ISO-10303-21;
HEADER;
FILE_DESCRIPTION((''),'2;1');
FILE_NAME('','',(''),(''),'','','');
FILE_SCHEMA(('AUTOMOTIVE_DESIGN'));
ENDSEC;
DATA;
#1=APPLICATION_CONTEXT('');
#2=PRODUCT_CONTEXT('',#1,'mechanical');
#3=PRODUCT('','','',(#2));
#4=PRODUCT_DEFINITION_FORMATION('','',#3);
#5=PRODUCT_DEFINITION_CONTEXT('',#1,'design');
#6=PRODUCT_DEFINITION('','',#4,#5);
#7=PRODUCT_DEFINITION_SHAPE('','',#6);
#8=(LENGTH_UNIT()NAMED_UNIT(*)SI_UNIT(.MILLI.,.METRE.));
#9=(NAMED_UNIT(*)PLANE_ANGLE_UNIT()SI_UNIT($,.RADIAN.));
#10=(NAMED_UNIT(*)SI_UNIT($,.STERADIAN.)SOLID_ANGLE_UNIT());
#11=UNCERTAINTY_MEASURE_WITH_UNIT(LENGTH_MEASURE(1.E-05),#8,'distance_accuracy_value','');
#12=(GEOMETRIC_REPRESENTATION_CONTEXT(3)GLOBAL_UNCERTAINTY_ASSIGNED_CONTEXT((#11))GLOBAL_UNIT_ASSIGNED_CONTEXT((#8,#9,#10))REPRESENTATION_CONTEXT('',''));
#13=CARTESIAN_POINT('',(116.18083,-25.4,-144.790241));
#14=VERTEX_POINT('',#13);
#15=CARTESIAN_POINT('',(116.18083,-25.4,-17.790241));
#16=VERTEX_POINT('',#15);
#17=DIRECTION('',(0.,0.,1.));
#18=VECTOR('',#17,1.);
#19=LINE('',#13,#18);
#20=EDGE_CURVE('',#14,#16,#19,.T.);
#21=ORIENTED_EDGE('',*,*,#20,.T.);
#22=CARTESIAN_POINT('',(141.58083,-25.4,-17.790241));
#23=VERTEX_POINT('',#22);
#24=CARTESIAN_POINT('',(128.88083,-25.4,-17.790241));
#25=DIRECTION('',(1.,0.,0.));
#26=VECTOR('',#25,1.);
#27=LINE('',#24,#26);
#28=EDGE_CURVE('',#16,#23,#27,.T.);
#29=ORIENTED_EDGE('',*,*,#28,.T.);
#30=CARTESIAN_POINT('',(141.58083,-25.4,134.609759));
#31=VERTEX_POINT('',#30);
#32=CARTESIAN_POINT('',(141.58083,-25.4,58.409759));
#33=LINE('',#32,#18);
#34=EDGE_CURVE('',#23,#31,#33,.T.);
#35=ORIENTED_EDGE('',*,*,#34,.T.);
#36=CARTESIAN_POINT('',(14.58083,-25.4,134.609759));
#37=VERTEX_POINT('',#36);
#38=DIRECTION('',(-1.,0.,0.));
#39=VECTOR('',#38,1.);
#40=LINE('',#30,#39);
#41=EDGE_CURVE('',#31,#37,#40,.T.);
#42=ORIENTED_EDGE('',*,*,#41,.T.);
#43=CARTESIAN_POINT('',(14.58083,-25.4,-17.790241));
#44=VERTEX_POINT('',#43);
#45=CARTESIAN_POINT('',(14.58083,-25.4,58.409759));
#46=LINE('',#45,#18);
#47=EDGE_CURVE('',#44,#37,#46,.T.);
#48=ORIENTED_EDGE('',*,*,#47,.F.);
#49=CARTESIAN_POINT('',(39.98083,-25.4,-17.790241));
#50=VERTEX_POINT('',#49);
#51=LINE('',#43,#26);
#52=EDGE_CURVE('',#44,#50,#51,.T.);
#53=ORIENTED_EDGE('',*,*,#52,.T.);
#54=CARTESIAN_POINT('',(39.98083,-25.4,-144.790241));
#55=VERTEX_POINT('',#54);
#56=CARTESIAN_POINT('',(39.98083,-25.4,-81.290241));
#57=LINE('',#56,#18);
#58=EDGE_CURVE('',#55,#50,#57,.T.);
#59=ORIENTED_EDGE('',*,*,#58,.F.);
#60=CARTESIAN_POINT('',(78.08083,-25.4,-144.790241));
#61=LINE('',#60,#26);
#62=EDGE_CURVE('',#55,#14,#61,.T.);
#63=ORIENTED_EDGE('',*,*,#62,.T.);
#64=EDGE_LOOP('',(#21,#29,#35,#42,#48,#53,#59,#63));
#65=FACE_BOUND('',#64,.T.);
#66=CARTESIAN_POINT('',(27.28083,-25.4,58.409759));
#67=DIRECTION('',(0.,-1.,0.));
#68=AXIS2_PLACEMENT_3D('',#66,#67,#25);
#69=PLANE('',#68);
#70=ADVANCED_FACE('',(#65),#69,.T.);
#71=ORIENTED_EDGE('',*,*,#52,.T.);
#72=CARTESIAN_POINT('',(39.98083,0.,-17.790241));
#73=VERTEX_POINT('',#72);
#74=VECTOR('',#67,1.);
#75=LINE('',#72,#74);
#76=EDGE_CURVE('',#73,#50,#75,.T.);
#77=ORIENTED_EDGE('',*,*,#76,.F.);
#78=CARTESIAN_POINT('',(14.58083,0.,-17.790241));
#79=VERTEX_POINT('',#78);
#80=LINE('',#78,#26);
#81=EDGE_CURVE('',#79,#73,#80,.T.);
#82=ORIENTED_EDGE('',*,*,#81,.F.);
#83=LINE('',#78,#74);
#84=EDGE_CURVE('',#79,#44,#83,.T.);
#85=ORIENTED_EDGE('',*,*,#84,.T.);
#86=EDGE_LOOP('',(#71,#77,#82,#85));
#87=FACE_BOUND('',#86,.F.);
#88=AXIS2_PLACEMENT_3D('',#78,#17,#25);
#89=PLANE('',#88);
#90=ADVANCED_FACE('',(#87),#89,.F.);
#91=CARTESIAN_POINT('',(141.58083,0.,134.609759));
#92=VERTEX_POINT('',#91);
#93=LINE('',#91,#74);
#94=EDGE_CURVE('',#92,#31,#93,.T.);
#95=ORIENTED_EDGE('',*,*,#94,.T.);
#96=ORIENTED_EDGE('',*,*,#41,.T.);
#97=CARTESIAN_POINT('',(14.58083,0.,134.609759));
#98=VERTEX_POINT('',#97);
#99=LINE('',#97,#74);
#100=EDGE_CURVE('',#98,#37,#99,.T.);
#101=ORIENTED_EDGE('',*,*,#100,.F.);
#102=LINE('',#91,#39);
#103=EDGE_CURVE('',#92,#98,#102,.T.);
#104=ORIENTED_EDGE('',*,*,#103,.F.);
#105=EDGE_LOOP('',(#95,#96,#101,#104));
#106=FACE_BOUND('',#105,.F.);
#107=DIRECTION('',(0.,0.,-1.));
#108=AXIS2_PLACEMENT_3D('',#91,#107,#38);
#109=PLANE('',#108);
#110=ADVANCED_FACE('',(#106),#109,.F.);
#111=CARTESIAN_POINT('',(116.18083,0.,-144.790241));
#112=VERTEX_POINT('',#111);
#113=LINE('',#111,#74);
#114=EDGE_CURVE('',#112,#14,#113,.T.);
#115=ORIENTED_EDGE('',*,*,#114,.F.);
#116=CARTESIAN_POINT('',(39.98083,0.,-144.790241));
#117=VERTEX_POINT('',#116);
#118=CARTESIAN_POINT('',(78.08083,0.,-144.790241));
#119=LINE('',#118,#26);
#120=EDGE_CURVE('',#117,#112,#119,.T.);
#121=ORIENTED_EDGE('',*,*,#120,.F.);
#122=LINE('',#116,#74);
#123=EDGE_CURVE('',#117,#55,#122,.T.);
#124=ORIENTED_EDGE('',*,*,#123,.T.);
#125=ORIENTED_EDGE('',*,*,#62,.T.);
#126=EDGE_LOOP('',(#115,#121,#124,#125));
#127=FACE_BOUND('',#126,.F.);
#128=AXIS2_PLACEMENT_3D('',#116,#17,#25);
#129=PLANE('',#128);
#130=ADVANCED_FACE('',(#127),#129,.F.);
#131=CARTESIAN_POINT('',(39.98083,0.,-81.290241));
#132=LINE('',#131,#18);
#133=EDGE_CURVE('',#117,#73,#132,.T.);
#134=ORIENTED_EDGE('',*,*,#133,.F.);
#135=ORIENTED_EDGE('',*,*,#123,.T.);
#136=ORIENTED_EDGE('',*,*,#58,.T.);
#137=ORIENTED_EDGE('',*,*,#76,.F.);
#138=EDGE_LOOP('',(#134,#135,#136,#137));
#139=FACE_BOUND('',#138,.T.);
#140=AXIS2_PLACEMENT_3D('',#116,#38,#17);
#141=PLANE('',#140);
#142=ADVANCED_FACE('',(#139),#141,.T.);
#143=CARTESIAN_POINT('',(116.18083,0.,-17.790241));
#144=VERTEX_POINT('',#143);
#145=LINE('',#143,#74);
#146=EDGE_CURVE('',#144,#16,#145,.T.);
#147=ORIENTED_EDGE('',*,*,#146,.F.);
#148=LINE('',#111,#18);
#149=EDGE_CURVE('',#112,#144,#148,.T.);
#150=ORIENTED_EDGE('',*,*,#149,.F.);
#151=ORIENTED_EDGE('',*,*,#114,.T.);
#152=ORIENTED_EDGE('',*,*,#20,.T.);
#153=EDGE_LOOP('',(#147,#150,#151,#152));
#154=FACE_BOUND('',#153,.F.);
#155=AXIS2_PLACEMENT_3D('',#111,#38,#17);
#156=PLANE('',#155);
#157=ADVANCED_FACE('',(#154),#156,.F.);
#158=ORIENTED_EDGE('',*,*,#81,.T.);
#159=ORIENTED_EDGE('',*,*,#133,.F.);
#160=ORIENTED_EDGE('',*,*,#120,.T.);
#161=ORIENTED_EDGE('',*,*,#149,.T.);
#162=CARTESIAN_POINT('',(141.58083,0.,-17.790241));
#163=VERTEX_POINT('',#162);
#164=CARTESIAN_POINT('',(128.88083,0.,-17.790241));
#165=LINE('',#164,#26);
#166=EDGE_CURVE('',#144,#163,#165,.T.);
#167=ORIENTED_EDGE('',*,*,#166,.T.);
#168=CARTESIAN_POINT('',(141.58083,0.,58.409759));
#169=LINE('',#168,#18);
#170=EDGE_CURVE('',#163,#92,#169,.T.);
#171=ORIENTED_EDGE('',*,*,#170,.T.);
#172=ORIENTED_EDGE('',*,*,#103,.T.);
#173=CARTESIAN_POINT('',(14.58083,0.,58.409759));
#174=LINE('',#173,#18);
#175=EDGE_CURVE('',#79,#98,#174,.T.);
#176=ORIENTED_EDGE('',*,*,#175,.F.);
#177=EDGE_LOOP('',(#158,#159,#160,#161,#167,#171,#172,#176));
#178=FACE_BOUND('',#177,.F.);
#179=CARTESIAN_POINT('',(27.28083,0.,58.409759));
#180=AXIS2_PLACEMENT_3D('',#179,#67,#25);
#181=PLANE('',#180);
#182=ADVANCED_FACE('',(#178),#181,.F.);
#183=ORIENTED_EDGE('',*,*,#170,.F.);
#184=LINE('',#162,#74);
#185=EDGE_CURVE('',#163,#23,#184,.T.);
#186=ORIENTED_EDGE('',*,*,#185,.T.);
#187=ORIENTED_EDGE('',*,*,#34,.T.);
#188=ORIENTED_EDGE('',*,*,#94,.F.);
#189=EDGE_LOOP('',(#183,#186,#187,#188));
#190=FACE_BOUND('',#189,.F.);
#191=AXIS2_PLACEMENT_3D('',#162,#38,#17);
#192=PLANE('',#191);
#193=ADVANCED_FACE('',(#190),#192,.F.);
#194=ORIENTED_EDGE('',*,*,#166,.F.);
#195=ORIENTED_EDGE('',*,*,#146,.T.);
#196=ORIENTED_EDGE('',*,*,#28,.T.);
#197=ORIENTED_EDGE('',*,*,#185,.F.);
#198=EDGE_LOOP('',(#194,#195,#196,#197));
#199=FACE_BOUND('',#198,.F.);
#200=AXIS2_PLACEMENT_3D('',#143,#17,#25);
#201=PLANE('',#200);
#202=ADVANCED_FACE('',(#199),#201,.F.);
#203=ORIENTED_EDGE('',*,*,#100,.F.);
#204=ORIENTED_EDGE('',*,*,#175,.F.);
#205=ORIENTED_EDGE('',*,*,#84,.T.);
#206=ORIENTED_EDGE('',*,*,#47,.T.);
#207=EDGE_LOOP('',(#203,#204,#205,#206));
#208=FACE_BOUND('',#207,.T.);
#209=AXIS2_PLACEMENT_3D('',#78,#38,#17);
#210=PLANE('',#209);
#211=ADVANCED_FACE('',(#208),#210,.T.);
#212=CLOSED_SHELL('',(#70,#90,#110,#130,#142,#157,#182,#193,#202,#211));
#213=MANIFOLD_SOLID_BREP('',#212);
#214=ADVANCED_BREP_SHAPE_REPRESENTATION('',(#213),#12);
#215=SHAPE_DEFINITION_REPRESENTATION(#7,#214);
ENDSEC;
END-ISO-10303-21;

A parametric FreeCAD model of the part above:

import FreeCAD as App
import Part
import Sketcher
Q = App.Units.Quantity


def add_polygon(sketch, points):
    """Adds a closed chain of lines whose ends are joined by coincident constraints."""
    first, n = sketch.GeometryCount, len(points)
    for a, b in zip(points, points[1:] + points[:1]):
        sketch.addGeometry(Part.LineSegment(App.Vector(*a, 0), App.Vector(*b, 0)), False)
    for i in range(n):
        sketch.addConstraint(Sketcher.Constraint("Coincident", first + i, 2, first + (i + 1) % n, 1))

doc = App.newDocument("Part")
params = doc.addObject("Spreadsheet::Sheet", "Params")
for row, (alias, value) in enumerate([
    ("sketch1_width", "1 in"),
    ("sketch1_width2", "3 in"),
    ("sketch1_height", "6 in"),
    ("pad1_length", "1 in"),
], start=1):
    params.set(f"A{row}", alias)
    params.set(f"B{row}", "=" + value)
    params.setAlias(f"B{row}", alias)

body = doc.addObject("PartDesign::Body", "Body")

# Sketch on XZ plane
sketch1 = body.newObject("Sketcher::SketchObject", "Sketch")
sketch1.AttachmentSupport = (doc.getObject("XZ_Plane"), [""])
sketch1.MapMode = "FlatFace"
add_polygon(sketch1, [(15, 135), (15, -18), (40, -18), (40, -145), (116, -145), (116, -18), (142, -18), (142, 135)])  # lines 0-7
sketch1.addConstraint([
    Sketcher.Constraint("Vertical", 0),
    Sketcher.Constraint("Horizontal", 1),
    Sketcher.Constraint("Vertical", 2),
    Sketcher.Constraint("Horizontal", 3),
    Sketcher.Constraint("Vertical", 4),
    Sketcher.Constraint("Horizontal", 5),
    Sketcher.Constraint("Vertical", 6),
    Sketcher.Constraint("Horizontal", 7),
    Sketcher.Constraint("Horizontal", 1, 2, 4, 2),
    Sketcher.Constraint("Equal", 1, 5),
    Sketcher.Constraint("Equal", 7, 2),
    Sketcher.Constraint("DistanceX", 1, 1, 1, 2, Q("1 in")),
    Sketcher.Constraint("DistanceX", 3, 1, 3, 2, Q("3 in")),
    Sketcher.Constraint("DistanceY", 0, 2, 0, 1, Q("6 in")),
    Sketcher.Constraint("DistanceX", -1, 1, 0, 2, 14.58083),
    Sketcher.Constraint("DistanceY", 0, 2, -1, 1, 17.790241),
])
sketch1.setExpression("Constraints[19]", "Params.sketch1_width")
sketch1.setExpression("Constraints[20]", "Params.sketch1_width2")
sketch1.setExpression("Constraints[21]", "Params.sketch1_height")
pad1 = body.newObject("PartDesign::Pad", "Pad")
pad1.Profile = sketch1
pad1.setExpression("Length", "Params.pad1_length")

doc.recompute()
